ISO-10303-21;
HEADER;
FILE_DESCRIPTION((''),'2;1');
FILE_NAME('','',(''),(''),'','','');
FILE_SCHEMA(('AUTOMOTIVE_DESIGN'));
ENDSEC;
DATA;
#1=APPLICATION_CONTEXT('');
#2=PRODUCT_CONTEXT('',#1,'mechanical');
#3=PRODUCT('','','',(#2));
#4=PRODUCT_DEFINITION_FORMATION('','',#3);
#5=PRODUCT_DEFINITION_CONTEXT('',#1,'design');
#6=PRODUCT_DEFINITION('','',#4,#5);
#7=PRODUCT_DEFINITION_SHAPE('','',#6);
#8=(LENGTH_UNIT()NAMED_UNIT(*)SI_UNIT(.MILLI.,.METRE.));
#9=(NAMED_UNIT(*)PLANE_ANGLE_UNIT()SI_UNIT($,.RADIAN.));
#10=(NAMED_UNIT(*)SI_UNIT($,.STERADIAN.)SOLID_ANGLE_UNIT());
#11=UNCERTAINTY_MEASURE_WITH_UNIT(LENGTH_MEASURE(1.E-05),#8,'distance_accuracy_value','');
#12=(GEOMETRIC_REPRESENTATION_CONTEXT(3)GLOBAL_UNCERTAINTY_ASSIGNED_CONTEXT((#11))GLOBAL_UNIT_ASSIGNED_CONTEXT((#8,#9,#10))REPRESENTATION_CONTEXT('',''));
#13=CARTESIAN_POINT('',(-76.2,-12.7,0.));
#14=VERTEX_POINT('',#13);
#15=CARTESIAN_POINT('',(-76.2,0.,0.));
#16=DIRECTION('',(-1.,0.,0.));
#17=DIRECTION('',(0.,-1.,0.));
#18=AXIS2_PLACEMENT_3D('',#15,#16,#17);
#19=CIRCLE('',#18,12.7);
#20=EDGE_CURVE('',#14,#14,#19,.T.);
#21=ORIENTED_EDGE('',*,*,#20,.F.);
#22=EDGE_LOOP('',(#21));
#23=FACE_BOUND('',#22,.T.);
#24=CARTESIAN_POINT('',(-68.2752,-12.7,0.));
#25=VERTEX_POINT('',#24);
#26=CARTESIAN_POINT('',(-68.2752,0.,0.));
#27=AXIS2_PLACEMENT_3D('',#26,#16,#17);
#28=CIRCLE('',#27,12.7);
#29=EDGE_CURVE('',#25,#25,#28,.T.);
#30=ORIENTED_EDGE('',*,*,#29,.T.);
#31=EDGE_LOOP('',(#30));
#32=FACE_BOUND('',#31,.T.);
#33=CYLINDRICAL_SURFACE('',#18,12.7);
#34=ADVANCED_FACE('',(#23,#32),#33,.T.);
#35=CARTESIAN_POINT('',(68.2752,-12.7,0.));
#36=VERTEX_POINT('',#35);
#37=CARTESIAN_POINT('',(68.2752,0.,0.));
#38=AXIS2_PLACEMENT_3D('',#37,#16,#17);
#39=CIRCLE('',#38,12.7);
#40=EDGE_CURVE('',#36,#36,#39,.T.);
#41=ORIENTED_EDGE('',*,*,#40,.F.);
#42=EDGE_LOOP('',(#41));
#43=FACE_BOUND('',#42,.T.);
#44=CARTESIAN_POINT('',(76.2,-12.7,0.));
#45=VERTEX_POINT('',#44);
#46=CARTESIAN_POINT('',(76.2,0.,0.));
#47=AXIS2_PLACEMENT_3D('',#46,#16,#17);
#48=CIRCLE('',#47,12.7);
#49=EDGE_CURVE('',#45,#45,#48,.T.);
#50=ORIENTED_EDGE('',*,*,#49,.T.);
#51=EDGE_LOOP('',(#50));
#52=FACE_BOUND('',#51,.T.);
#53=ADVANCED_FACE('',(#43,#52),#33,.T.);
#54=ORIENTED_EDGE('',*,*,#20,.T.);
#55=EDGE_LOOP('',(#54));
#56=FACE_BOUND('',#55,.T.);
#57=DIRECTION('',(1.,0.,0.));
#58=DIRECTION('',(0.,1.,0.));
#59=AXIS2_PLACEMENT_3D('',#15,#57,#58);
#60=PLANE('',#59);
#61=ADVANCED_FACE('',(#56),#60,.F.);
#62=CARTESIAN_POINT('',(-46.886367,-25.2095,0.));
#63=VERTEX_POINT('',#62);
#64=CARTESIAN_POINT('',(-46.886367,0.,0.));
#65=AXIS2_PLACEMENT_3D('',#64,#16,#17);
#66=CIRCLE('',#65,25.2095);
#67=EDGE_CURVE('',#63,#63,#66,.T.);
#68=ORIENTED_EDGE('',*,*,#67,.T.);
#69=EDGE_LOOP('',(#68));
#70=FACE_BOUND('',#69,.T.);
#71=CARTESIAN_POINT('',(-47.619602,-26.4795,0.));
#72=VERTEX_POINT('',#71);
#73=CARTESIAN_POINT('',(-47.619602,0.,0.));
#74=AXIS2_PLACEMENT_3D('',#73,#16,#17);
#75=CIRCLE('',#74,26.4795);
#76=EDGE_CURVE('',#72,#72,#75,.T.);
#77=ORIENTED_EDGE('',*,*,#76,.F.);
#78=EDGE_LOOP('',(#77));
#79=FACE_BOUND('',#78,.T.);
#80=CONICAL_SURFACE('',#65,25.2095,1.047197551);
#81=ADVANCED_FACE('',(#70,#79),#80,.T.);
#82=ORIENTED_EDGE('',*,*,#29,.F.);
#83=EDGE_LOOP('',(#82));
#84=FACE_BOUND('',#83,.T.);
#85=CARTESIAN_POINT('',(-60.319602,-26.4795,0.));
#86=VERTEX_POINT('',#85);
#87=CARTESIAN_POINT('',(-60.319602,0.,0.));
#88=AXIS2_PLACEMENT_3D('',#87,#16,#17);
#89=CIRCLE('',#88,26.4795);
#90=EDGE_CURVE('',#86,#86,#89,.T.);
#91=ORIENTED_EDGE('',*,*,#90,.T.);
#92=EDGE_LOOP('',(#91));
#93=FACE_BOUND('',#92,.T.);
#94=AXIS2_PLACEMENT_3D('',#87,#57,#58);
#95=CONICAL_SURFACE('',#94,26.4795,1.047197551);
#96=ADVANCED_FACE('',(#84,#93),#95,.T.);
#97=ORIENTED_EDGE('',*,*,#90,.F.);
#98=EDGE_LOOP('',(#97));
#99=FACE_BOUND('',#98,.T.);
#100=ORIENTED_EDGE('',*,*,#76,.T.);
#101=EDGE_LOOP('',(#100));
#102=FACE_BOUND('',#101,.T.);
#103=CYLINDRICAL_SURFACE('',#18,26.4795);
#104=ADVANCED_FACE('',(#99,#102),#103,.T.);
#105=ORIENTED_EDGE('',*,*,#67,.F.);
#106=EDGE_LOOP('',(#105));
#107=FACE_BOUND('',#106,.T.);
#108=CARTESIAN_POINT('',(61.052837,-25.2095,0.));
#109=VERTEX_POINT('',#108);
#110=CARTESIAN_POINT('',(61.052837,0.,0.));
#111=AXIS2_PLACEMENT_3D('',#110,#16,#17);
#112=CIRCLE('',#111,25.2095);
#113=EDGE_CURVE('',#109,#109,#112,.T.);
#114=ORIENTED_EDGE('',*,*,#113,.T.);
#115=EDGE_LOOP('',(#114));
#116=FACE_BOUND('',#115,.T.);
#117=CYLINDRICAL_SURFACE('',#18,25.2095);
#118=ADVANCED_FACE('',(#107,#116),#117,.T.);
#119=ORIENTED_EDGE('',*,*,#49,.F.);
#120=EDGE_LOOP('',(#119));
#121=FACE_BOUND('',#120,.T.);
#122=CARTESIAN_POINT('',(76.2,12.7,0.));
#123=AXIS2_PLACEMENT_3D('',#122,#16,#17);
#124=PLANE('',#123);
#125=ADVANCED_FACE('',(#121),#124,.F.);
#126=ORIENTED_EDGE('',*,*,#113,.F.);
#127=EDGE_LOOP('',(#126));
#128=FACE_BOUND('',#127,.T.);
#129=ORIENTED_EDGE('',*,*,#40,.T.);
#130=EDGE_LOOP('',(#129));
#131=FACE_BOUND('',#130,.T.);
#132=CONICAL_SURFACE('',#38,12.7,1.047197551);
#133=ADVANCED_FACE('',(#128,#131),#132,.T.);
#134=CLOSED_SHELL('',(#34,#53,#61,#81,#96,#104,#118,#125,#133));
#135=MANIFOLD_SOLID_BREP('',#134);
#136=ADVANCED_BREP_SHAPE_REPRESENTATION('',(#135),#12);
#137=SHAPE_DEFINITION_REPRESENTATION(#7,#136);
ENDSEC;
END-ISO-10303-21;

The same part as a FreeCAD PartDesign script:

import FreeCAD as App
import Part
import Sketcher
from FreeCAD import Vector
Q = App.Units.Quantity


def add_polygon(sketch, points):
    """Adds a closed chain of lines whose ends are joined by coincident constraints."""
    first, n = sketch.GeometryCount, len(points)
    for a, b in zip(points, points[1:] + points[:1]):
        sketch.addGeometry(Part.LineSegment(App.Vector(*a, 0), App.Vector(*b, 0)), False)
    for i in range(n):
        sketch.addConstraint(Sketcher.Constraint("Coincident", first + i, 2, first + (i + 1) % n, 1))

doc = App.newDocument("Part")
body = doc.addObject("PartDesign::Body", "Body")

# Sketch on XY plane
sketch1 = doc.addObject("Sketcher::SketchObject", "Sketch")
body.addObject(sketch1)
sketch1.AttachmentSupport = (doc.XY_Plane, [""])
sketch1.MapMode = "FlatFace"
add_polygon(sketch1, [(-76.2, 12.7), (-76.2, 0), (76.2, 0), (76.2, 12.7), (68.3, 12.7), (61.1, 25.2), (-46.9, 25.2), (-47.6, 26.5), (-60.3, 26.5), (-68.3, 12.7)])  # lines 0-9
sketch1.addConstraint(Sketcher.Constraint("Vertical", 0))
sketch1.addConstraint(Sketcher.Constraint("Horizontal", 1))
sketch1.addConstraint(Sketcher.Constraint("Vertical", 2))
sketch1.addConstraint(Sketcher.Constraint("Horizontal", 3))
sketch1.addConstraint(Sketcher.Constraint("Horizontal", 5))
sketch1.addConstraint(Sketcher.Constraint("Horizontal", 7))
sketch1.addConstraint(Sketcher.Constraint("Horizontal", 9))
sketch1.addConstraint(Sketcher.Constraint("Symmetric", 0, 2, 1, 2, -1, 1))
sketch1.addConstraint(Sketcher.Constraint("Symmetric", 3, 2, 8, 2, -2))
sketch1.addConstraint(Sketcher.Constraint("Parallel", 4, 6))
sketch1.addConstraint(Sketcher.Constraint("Equal", 7, 0))
sketch1.addConstraint(Sketcher.Constraint("DistanceX", 1, 1, 1, 2, Q("6 in")))
sketch1.addConstraint(Sketcher.Constraint("DistanceX", 7, 2, 7, 1, Q("0.5 in")))
sketch1.addConstraint(Sketcher.Constraint("Angle", 4, Q("120 deg")))
sketch1.addConstraint(Sketcher.Constraint("Angle", 8, Q("-120 deg")))
sketch1.addConstraint(Sketcher.Constraint("DistanceX", 3, 2, 3, 1, Q("0.312 in")))
sketch1.addConstraint(Sketcher.Constraint("DistanceY", 5, 2, 6, 2, Q("0.05 in")))
sketch1.addConstraint(Sketcher.Constraint("DistanceY", -1, 1, 4, 2, Q("0.9925 in")))
revolution = doc.addObject("PartDesign::Revolution", "Revolution")
body.addObject(revolution)
revolution.Profile = sketch1
revolution.ReferenceAxis = (sketch1, ["H_Axis"])
revolution.Angle = 360

doc.recompute()
